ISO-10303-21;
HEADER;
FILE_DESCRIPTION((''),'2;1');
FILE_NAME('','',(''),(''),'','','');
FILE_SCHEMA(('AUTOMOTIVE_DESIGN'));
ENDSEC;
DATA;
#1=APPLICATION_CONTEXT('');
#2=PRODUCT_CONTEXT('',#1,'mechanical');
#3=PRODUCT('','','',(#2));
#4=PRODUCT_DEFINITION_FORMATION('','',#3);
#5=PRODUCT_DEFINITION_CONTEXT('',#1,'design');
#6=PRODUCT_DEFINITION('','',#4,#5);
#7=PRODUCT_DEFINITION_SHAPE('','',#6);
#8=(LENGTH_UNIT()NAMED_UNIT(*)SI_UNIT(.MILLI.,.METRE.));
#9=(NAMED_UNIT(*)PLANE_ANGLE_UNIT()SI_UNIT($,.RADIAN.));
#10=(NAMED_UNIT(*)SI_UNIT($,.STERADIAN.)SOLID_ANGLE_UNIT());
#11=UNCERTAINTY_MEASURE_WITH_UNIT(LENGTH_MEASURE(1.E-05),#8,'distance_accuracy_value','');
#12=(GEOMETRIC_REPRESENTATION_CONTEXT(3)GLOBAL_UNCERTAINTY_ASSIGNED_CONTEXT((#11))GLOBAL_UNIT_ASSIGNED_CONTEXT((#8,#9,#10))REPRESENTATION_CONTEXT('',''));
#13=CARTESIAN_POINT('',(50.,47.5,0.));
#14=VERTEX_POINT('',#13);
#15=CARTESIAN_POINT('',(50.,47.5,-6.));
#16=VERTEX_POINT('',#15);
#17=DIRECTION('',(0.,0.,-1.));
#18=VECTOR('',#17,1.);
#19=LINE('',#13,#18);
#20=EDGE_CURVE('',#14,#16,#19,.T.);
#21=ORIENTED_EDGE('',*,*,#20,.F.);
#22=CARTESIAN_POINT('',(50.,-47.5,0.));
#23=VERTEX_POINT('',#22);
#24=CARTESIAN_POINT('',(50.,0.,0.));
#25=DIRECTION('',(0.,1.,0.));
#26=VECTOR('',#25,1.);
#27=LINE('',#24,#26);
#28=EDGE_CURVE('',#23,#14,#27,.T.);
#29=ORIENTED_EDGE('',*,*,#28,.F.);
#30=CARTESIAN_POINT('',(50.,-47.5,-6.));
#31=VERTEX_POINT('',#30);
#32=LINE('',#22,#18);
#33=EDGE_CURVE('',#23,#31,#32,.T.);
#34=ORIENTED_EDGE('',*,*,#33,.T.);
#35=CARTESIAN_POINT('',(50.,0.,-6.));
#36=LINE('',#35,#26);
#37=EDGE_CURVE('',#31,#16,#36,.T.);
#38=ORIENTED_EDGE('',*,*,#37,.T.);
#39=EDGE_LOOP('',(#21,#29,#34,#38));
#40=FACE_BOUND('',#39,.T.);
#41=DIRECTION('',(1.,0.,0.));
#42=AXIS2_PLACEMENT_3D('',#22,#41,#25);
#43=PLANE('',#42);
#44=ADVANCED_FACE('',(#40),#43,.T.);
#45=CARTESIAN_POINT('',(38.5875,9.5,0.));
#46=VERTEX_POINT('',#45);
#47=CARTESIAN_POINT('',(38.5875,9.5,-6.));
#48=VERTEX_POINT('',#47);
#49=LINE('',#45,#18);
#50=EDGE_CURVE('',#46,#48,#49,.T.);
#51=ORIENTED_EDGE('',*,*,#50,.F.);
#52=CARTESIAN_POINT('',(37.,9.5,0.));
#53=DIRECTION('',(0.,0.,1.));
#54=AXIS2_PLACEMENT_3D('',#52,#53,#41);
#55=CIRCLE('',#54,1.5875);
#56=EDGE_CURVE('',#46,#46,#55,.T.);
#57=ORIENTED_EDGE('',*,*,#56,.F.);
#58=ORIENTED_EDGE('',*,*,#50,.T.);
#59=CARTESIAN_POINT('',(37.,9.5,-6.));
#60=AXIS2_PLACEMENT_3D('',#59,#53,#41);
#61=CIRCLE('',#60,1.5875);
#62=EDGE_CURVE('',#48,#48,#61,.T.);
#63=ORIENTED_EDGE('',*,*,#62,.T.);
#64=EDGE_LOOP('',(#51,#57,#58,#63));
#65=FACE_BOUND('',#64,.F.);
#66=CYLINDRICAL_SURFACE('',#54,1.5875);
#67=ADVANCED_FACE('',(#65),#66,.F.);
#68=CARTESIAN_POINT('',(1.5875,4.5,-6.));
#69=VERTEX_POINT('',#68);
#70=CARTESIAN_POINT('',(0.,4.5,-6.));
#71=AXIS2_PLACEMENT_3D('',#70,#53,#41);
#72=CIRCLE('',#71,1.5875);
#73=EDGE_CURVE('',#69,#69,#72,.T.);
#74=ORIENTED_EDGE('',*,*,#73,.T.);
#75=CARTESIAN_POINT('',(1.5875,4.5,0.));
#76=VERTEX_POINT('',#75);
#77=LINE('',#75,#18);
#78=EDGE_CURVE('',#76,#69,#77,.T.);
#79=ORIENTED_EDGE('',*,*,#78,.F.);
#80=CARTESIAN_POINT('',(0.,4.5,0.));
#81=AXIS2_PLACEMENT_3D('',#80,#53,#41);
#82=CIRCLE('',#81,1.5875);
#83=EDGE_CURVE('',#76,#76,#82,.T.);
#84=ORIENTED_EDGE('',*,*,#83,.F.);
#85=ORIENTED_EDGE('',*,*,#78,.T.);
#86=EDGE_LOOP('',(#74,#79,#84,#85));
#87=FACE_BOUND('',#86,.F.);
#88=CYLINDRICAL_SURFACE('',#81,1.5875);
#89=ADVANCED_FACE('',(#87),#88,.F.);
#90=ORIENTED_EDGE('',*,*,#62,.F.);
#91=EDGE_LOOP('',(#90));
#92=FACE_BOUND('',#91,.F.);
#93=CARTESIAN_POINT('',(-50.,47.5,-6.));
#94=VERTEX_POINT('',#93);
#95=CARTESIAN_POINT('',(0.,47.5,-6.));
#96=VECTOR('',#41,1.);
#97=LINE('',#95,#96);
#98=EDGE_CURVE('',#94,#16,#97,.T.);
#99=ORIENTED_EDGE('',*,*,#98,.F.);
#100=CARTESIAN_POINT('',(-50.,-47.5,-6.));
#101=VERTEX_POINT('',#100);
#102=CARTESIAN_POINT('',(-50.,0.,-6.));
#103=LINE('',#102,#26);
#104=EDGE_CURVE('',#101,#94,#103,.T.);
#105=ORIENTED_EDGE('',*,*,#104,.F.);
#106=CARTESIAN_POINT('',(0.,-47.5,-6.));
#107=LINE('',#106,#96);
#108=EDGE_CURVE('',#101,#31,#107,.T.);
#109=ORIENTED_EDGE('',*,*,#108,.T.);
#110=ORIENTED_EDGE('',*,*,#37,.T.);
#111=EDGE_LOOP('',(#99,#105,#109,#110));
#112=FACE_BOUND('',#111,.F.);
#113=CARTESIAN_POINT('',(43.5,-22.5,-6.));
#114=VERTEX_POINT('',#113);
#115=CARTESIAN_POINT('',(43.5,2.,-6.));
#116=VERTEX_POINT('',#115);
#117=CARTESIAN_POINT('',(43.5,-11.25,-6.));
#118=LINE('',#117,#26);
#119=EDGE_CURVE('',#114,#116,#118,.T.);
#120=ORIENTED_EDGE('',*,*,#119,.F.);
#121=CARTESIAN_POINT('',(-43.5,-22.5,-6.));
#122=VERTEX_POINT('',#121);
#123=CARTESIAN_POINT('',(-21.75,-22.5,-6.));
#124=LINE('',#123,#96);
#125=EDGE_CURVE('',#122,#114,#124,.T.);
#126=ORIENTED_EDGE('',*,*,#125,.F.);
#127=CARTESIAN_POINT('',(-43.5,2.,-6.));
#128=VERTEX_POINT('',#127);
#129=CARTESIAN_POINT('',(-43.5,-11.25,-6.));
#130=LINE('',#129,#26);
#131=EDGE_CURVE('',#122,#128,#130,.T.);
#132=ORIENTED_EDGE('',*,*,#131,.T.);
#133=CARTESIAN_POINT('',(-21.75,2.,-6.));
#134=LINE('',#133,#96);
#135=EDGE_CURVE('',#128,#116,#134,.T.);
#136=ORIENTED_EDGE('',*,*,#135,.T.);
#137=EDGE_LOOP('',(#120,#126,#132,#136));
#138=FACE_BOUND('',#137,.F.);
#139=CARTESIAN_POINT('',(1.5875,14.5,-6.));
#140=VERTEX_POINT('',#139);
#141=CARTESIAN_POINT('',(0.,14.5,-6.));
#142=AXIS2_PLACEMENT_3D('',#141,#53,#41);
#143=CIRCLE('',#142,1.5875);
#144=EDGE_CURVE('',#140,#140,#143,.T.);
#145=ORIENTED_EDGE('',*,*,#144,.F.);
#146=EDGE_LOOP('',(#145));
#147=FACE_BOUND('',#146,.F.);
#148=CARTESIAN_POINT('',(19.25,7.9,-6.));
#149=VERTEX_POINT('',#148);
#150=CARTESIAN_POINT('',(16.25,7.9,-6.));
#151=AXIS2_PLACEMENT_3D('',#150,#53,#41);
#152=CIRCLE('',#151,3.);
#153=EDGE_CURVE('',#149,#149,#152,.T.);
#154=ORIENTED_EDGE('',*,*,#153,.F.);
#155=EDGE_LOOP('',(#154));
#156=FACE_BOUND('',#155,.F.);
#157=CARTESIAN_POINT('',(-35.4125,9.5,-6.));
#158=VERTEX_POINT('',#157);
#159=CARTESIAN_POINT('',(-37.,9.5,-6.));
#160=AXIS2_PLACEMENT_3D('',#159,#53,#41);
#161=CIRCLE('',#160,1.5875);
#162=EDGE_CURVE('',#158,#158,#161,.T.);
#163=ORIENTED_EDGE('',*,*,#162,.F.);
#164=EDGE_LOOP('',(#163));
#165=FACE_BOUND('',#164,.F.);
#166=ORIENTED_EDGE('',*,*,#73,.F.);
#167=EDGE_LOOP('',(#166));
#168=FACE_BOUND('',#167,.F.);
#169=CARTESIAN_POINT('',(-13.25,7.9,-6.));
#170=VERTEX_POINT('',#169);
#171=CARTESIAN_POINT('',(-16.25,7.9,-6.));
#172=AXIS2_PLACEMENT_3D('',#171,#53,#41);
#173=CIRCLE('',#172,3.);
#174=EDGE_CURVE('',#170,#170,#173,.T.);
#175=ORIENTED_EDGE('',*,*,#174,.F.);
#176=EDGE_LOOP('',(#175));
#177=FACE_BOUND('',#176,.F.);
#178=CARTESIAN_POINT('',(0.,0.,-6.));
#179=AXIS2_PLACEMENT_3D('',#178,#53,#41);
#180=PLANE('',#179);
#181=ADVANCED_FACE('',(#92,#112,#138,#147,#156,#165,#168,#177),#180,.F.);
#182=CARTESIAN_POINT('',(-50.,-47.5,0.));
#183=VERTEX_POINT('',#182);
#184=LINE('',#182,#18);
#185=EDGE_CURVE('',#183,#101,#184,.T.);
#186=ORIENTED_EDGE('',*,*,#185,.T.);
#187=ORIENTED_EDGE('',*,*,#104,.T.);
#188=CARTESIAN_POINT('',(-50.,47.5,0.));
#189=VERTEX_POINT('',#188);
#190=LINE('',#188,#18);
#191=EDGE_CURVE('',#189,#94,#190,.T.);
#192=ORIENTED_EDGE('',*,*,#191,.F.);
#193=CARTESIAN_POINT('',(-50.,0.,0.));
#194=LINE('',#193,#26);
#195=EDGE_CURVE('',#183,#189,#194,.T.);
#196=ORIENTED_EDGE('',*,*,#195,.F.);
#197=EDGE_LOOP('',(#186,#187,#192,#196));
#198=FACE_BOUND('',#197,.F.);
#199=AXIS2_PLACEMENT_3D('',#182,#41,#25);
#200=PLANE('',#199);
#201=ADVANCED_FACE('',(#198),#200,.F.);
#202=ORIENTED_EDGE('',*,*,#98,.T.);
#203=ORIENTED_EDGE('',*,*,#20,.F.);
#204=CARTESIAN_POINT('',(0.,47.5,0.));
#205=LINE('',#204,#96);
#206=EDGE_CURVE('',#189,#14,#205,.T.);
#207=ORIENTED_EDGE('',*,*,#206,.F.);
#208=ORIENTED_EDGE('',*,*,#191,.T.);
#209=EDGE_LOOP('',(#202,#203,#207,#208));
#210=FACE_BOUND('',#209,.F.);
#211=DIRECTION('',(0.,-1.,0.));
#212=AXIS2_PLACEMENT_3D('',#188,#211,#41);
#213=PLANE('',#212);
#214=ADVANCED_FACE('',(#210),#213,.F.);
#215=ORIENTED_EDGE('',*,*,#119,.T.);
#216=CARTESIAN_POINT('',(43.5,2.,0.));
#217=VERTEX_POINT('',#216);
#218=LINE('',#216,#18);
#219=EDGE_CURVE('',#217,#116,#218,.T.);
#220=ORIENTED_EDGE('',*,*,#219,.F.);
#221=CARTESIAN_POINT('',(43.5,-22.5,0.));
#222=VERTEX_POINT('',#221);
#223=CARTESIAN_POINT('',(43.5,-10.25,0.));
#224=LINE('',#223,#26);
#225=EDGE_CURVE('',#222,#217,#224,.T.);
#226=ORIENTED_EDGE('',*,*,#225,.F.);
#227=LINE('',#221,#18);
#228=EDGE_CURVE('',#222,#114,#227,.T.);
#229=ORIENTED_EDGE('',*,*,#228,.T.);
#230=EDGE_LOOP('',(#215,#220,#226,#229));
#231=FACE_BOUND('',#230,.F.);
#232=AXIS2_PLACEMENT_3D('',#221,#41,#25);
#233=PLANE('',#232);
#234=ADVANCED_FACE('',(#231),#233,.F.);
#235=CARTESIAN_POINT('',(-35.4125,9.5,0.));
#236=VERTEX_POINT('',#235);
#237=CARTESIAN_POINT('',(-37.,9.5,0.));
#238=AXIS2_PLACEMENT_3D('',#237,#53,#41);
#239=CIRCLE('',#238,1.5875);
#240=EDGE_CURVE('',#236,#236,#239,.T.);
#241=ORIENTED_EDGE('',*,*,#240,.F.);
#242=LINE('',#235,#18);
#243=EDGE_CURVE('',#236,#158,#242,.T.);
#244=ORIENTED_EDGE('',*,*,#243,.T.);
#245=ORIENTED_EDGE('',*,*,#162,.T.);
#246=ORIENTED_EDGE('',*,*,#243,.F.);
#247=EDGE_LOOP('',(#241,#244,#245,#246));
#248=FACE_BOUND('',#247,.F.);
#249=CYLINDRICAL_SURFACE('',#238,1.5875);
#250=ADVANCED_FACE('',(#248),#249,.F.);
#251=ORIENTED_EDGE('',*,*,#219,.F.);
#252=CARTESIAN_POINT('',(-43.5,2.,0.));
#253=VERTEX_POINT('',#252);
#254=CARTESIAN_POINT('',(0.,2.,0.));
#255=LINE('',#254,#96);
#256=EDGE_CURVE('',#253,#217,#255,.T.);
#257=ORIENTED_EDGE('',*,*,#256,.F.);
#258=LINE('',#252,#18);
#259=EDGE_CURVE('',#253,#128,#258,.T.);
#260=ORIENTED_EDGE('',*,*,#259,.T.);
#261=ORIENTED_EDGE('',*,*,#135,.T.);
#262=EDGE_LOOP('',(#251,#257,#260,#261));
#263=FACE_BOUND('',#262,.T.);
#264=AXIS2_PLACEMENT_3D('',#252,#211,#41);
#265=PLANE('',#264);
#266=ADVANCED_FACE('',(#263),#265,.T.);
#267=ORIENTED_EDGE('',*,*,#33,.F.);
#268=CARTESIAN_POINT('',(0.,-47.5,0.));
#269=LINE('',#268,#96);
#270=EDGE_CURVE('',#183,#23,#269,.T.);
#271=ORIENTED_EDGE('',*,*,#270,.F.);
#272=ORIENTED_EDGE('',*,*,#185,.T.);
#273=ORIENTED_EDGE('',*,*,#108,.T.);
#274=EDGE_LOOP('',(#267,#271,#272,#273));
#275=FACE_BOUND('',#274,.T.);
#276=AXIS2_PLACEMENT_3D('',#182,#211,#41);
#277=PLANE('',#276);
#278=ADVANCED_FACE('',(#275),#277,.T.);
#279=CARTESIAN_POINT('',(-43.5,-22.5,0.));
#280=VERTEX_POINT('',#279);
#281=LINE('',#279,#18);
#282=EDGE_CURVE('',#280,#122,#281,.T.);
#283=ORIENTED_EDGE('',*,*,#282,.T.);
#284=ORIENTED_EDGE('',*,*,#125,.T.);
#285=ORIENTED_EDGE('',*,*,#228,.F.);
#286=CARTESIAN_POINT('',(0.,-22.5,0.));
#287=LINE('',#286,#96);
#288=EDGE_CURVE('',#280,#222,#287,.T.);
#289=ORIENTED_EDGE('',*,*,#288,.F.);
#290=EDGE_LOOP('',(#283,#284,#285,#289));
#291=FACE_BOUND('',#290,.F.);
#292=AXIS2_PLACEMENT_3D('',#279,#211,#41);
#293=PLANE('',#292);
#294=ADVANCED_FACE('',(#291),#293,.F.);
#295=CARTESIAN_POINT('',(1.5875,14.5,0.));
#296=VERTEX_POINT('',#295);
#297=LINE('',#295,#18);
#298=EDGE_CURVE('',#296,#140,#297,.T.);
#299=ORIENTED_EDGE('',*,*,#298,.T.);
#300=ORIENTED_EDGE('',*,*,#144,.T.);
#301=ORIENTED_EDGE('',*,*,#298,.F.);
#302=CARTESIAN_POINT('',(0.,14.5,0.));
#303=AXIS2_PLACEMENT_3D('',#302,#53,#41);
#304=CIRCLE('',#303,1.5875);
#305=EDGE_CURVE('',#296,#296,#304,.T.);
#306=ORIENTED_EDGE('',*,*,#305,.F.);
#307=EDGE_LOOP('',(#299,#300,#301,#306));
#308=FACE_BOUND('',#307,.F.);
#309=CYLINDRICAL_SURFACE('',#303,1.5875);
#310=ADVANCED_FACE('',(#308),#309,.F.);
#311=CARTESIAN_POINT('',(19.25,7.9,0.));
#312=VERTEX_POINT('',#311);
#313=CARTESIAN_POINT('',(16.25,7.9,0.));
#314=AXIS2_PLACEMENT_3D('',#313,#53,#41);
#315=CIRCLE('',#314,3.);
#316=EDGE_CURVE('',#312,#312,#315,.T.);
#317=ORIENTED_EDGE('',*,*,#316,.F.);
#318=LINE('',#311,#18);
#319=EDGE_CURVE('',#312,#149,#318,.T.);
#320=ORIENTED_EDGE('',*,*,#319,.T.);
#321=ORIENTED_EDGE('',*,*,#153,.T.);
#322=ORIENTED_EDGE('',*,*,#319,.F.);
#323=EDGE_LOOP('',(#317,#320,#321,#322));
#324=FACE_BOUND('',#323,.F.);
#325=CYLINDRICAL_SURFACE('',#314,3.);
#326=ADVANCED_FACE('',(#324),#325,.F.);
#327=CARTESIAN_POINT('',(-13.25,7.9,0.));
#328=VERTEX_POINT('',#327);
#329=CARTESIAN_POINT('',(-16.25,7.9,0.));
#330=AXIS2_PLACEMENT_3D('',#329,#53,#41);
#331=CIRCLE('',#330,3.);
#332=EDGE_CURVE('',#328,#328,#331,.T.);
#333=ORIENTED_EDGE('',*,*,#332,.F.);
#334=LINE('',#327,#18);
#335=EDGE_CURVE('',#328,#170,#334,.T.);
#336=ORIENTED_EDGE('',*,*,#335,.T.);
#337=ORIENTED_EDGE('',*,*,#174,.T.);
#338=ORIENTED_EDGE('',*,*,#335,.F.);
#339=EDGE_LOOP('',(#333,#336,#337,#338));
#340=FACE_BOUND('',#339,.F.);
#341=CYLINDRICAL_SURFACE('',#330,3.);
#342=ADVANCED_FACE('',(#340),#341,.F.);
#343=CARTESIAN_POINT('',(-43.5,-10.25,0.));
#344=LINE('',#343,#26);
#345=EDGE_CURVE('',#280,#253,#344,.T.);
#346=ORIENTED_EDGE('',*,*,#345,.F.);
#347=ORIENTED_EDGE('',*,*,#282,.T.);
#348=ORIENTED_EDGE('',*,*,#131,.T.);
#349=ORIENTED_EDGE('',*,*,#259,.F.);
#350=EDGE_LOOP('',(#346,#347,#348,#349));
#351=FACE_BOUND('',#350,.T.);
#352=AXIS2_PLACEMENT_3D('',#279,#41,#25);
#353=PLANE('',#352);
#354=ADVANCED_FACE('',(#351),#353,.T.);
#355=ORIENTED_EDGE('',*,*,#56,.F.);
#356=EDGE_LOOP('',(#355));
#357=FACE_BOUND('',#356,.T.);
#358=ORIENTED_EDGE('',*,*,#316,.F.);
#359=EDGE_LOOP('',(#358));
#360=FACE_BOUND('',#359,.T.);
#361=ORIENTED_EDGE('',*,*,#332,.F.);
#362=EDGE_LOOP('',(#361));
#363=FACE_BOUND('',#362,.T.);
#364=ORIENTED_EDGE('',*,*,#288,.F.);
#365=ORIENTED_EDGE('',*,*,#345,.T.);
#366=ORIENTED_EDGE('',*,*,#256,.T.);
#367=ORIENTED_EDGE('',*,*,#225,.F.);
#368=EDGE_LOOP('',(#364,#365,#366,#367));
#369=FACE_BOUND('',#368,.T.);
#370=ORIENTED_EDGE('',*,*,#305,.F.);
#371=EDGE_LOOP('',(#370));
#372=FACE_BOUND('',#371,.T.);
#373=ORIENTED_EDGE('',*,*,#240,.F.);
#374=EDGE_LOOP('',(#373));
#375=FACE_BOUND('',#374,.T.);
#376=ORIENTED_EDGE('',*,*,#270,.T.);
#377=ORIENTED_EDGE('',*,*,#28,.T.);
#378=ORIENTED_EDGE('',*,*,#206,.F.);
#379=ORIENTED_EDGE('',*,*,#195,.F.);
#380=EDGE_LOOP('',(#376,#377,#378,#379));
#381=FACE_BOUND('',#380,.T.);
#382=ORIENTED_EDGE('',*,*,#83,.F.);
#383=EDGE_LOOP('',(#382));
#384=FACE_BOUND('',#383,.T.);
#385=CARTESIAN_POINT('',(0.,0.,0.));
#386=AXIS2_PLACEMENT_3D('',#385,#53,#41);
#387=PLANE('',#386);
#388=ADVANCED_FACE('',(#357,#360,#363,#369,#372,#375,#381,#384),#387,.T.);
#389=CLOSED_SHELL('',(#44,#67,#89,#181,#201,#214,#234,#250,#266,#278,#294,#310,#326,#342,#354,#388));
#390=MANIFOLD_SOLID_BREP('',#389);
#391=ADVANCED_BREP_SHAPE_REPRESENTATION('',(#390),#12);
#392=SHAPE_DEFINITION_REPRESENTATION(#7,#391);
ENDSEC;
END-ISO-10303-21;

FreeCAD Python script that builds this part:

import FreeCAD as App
import Part
import Sketcher
Q = App.Units.Quantity

doc = App.newDocument("Part")
body = doc.addObject("PartDesign::Body", "Body")

# Sketch on XY plane
sketch1 = doc.addObject("Sketcher::SketchObject", "Sketch")
body.addObject(sketch1)
sketch1.AttachmentSupport = (doc.XY_Plane, [""])
sketch1.MapMode = "FlatFace"
sketch1.addGeometry([
    Part.LineSegment(App.Vector(-50, 48, 0), App.Vector(-50, -48, 0)),
    Part.LineSegment(App.Vector(-50, -48, 0), App.Vector(50, -48, 0)),
    Part.LineSegment(App.Vector(50, -48, 0), App.Vector(50, 48, 0)),
    Part.LineSegment(App.Vector(50, 48, 0), App.Vector(-50, 48, 0)),
], False)
sketch1.addConstraint([
    Sketcher.Constraint("Coincident", 0, 2, 1, 1),
    Sketcher.Constraint("Coincident", 1, 2, 2, 1),
    Sketcher.Constraint("Coincident", 2, 2, 3, 1),
    Sketcher.Constraint("Coincident", 3, 2, 0, 1),
    Sketcher.Constraint("Vertical", 0),
    Sketcher.Constraint("Horizontal", 1),
    Sketcher.Constraint("Vertical", 2),
    Sketcher.Constraint("Horizontal", 3),
    Sketcher.Constraint("Symmetric", 0, 2, 2, 2, -1, 1),
    Sketcher.Constraint("DistanceX", 1, 1, 1, 2, Q("100 mm")),
    Sketcher.Constraint("DistanceY", 0, 2, 0, 1, Q("95 mm")),
])
pad1 = doc.addObject("PartDesign::Pad", "Pad")
body.addObject(pad1)
pad1.Profile = sketch1
pad1.Length = 6
pad1.Reversed = True

# Sketch on XY plane
sketch2 = doc.addObject("Sketcher::SketchObject", "Sketch001")
body.addObject(sketch2)
sketch2.AttachmentSupport = (doc.XY_Plane, [""])
sketch2.MapMode = "FlatFace"
sketch2.addGeometry([
    Part.LineSegment(App.Vector(-43.5, 2, 0), App.Vector(-43.5, -22.5, 0)),  # 0
    Part.LineSegment(App.Vector(-43.5, -22.5, 0), App.Vector(43.5, -22.5, 0)),  # 1
    Part.LineSegment(App.Vector(43.5, -22.5, 0), App.Vector(43.5, 2, 0)),  # 2
    Part.LineSegment(App.Vector(43.5, 2, 0), App.Vector(-43.5, 2, 0)),  # 3
    Part.Circle(App.Vector(-37, 9.5, 0), App.Vector(0, 0, 1), 1.6),  # 4
    Part.Circle(App.Vector(-16.2, 7.9, 0), App.Vector(0, 0, 1), 3),  # 5
    Part.Circle(App.Vector(0, 4.5, 0), App.Vector(0, 0, 1), 1.6),  # 6
    Part.Circle(App.Vector(0, 14.5, 0), App.Vector(0, 0, 1), 1.6),  # 7
    Part.Circle(App.Vector(16.2, 7.9, 0), App.Vector(0, 0, 1), 3),  # 8
    Part.Circle(App.Vector(37, 9.5, 0), App.Vector(0, 0, 1), 1.6),  # 9
], False)
sketch2.addConstraint([
    Sketcher.Constraint("Coincident", 0, 2, 1, 1),
    Sketcher.Constraint("Coincident", 1, 2, 2, 1),
    Sketcher.Constraint("Coincident", 2, 2, 3, 1),
    Sketcher.Constraint("Coincident", 3, 2, 0, 1),
    Sketcher.Constraint("Vertical", 0),
    Sketcher.Constraint("Horizontal", 1),
    Sketcher.Constraint("Vertical", 2),
    Sketcher.Constraint("Horizontal", 3),
    Sketcher.Constraint("Equal", 4, 6),
    Sketcher.Constraint("Equal", 6, 7),
    Sketcher.Constraint("Equal", 5, 8),
    Sketcher.Constraint("Equal", 7, 9),
    Sketcher.Constraint("Symmetric", 5, 3, 8, 3, -2),
    Sketcher.Constraint("Symmetric", 4, 3, 9, 3, -2),
    Sketcher.Constraint("PointOnObject", 6, 3, -2),
    Sketcher.Constraint("PointOnObject", 7, 3, -2),
    Sketcher.Constraint("Diameter", 5, Q("6 mm")),
    Sketcher.Constraint("DistanceX", 1, 1, 1, 2, Q("87 mm")),
    Sketcher.Constraint("Diameter", 4, Q("3.175 mm")),
    Sketcher.Constraint("DistanceY", 0, 2, 0, 1, Q("24.5 mm")),
    Sketcher.Constraint("DistanceX", 4, 3, -1, 1, Q("37 mm")),
    Sketcher.Constraint("DistanceY", -1, 1, 2, 2, Q("2 mm")),
    Sketcher.Constraint("DistanceY", 6, 3, 4, 3, Q("5 mm")),
    Sketcher.Constraint("DistanceY", 6, 3, 7, 3, Q("10 mm")),
    Sketcher.Constraint("DistanceY", 0, 2, 4, 3, Q("32 mm")),
    Sketcher.Constraint("DistanceY", -1, 1, 5, 3, Q("7.9 mm")),
    Sketcher.Constraint("DistanceX", 0, 2, -1, 1, Q("43.5 mm")),
    Sketcher.Constraint("DistanceX", 5, 3, 8, 3, Q("32.5 mm")),
])
pocket1 = doc.addObject("PartDesign::Pocket", "Pocket")
body.addObject(pocket1)
pocket1.Profile = sketch2
pocket1.Length = 25

doc.recompute()
